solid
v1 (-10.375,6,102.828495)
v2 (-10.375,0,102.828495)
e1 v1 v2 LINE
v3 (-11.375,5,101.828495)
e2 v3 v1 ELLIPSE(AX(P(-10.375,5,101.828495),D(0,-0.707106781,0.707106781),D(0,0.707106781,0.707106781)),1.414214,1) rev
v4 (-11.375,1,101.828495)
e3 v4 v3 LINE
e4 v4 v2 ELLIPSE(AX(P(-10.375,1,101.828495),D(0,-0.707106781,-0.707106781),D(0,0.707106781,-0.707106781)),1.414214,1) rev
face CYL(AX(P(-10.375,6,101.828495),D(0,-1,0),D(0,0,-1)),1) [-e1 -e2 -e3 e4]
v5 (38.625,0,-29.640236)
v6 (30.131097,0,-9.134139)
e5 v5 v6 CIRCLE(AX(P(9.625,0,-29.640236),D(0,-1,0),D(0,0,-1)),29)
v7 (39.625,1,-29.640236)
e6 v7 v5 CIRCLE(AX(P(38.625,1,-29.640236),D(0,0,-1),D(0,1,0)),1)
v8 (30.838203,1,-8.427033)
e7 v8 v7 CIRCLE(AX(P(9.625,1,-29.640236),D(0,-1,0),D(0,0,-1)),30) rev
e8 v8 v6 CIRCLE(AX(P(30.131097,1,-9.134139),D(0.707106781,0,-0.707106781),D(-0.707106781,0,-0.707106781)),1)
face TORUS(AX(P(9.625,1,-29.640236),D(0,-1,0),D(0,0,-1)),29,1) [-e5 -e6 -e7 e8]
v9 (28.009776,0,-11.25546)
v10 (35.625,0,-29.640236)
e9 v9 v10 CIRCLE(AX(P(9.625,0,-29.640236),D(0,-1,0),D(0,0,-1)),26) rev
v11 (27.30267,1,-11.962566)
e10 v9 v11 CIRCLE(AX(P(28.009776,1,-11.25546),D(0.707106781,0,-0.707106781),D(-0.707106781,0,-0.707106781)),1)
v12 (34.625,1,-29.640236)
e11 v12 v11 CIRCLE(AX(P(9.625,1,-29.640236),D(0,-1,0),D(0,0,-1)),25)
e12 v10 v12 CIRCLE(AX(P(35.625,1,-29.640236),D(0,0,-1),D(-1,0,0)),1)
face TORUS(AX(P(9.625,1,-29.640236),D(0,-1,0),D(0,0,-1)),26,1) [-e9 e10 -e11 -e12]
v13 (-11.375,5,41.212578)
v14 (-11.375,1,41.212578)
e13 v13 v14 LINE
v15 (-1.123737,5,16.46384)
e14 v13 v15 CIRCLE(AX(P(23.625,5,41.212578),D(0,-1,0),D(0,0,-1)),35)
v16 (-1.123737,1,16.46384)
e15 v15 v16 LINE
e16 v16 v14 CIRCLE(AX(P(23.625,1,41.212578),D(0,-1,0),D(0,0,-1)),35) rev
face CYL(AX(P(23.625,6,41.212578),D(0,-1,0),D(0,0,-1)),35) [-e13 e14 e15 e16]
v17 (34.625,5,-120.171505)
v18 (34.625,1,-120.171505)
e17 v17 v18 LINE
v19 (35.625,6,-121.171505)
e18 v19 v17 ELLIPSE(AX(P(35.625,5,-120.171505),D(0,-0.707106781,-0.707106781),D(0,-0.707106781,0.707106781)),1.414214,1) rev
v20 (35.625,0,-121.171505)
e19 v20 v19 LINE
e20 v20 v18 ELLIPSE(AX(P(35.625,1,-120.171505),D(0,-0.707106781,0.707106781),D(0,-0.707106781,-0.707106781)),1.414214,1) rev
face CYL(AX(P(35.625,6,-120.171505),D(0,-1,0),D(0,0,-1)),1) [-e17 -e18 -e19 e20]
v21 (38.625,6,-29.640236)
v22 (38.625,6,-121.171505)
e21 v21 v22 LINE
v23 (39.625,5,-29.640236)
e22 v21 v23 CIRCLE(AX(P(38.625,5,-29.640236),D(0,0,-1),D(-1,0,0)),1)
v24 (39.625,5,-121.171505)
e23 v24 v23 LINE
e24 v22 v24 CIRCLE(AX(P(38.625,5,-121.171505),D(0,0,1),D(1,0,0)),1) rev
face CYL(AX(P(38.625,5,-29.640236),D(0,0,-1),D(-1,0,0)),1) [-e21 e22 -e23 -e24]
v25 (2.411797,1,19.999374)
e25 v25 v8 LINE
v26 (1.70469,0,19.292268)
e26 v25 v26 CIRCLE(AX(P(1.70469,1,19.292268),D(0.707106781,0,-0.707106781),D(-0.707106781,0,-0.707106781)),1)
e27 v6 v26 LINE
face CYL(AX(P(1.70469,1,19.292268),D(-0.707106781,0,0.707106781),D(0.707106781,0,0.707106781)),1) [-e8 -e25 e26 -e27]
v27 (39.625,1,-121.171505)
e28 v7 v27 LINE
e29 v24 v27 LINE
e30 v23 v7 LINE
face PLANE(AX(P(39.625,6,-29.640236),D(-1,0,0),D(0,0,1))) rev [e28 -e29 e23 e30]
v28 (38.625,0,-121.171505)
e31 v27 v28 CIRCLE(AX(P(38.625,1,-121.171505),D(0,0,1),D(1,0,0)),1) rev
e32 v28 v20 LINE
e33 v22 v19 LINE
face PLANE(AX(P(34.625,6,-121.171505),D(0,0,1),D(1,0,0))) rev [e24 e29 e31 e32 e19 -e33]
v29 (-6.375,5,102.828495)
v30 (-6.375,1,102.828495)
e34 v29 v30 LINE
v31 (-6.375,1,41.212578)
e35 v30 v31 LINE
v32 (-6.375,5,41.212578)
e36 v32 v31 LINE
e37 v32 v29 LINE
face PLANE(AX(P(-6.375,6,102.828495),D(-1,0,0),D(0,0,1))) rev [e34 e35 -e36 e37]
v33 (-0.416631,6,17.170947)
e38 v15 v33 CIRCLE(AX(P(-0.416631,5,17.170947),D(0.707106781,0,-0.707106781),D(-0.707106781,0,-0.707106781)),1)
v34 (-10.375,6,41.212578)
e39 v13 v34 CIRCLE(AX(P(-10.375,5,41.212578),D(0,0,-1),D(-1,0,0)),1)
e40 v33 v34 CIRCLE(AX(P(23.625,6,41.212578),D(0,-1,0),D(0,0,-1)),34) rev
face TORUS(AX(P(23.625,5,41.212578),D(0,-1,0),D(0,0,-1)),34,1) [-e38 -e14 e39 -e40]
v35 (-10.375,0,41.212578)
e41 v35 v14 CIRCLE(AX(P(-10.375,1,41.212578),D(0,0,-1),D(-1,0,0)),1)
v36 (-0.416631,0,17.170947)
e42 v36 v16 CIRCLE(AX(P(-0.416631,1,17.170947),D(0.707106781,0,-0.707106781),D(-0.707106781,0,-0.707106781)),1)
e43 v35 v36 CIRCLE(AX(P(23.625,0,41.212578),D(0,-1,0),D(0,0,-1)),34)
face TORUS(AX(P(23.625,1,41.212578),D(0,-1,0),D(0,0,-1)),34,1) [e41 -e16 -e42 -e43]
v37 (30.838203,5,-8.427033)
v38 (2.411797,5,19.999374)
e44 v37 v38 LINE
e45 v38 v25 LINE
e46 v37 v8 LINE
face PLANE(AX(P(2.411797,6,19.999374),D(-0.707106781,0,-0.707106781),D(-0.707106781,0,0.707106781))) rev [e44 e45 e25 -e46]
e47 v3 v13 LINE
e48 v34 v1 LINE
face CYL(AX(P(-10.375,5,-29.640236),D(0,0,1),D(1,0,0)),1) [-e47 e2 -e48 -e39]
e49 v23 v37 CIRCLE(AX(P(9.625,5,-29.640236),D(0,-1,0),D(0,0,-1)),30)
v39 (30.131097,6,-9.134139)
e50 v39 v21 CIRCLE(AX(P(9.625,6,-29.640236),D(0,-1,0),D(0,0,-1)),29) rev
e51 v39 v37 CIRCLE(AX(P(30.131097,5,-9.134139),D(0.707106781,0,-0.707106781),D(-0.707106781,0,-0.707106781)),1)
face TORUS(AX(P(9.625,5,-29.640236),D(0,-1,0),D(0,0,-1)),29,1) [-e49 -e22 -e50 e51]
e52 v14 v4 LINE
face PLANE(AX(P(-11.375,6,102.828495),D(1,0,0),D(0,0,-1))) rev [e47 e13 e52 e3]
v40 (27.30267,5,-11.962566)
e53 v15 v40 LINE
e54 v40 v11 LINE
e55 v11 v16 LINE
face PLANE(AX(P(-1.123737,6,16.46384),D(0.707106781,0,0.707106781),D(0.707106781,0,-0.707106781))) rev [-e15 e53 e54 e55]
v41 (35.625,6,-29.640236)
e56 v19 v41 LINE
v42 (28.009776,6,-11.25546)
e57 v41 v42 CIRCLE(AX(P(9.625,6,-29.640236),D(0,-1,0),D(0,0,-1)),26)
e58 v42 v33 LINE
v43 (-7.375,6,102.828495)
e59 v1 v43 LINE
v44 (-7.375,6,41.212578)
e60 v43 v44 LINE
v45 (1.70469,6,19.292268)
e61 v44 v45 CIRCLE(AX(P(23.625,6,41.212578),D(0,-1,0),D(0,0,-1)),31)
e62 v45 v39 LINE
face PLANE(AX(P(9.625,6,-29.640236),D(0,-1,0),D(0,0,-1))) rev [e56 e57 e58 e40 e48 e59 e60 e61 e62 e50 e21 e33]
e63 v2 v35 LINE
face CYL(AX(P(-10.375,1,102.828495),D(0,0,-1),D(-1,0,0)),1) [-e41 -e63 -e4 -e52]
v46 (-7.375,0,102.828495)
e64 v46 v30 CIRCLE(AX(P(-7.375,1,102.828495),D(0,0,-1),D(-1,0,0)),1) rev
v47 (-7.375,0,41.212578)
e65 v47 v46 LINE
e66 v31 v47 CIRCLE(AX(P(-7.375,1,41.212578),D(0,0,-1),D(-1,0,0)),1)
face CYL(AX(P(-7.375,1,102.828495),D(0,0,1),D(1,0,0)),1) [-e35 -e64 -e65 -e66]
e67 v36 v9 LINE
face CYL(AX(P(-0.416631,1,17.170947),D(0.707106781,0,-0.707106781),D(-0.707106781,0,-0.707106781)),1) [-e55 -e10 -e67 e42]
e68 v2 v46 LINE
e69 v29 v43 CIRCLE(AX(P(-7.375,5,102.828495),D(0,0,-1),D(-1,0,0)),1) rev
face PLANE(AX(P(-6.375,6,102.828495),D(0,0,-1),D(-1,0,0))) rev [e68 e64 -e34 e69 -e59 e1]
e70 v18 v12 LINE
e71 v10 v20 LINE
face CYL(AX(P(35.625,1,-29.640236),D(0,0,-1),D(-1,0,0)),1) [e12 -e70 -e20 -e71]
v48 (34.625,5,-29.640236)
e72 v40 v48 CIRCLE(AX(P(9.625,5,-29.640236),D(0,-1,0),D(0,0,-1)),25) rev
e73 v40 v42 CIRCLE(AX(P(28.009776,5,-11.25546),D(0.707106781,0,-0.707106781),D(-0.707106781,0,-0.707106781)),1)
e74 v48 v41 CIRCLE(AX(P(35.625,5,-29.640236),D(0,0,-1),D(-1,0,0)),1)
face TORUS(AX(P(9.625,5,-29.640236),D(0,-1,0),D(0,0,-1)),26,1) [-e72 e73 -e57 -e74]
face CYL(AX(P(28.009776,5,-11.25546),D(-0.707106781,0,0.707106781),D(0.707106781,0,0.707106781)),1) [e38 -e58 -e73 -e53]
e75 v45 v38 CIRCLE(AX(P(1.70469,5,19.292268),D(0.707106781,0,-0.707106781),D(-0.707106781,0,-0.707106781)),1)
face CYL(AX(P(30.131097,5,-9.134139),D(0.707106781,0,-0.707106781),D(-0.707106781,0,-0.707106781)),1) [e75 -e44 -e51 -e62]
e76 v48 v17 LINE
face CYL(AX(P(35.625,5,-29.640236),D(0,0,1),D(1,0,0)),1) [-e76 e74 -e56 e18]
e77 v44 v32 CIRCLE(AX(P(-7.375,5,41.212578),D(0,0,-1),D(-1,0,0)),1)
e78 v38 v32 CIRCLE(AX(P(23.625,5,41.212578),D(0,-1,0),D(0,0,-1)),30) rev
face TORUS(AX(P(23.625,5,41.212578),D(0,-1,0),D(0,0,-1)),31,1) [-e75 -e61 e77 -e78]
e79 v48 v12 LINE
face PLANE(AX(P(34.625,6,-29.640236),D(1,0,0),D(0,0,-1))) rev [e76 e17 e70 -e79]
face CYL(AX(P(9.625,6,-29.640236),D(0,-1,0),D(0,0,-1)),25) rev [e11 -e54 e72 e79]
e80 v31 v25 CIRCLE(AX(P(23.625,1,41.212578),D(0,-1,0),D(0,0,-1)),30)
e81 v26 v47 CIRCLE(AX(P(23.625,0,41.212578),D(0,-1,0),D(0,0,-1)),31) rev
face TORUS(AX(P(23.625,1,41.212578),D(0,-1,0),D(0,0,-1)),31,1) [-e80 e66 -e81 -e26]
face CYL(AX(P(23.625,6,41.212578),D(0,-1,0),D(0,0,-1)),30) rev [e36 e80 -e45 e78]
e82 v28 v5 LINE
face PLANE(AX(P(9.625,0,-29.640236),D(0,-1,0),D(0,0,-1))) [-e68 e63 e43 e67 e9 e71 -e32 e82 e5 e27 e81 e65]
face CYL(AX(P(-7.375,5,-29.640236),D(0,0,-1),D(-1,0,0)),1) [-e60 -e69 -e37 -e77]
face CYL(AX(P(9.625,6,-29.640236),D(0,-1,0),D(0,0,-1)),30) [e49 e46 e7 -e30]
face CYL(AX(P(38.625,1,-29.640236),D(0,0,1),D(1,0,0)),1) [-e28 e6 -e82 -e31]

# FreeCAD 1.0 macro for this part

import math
import FreeCAD as App
import Part
import Sketcher
from FreeCAD import Vector
Q = App.Units.Quantity


def edges_at(feature, points):
    """Names of the edges that pass closest to the given points."""
    edges = feature.Shape.Edges
    near = lambda p: min(range(len(edges)), key=lambda i: edges[i].distToShape(Part.Vertex(*p))[0])
    return sorted({f"Edge{near(p) + 1}" for p in points})

doc = App.newDocument("Part")
body = doc.addObject("PartDesign::Body", "Body")

# Sketch on XZ plane
sketch1 = doc.addObject("Sketcher::SketchObject", "Sketch")
body.addObject(sketch1)
sketch1.AttachmentSupport = (doc.XZ_Plane, [""])
sketch1.MapMode = "FlatFace"
sketch1.addGeometry(Part.LineSegment(Vector(-11, 41, 0), Vector(-11, 103, 0)), False)
sketch1.addGeometry(Part.LineSegment(Vector(-11, 103, 0), Vector(-6, 103, 0)), False)
sketch1.addGeometry(Part.LineSegment(Vector(-6, 103, 0), Vector(-6, 41, 0)), False)
sketch1.addGeometry(Part.ArcOfCircle(Part.Circle(Vector(24, 41, 0), Vector(0, 0, 1), 30), math.radians(-180), math.radians(-135)), False)
sketch1.addGeometry(Part.LineSegment(Vector(2, 20, 0), Vector(31, -8, 0)), False)
sketch1.addGeometry(Part.ArcOfCircle(Part.Circle(Vector(10, -30, 0), Vector(0, 0, 1), 30), math.radians(0), math.radians(45)), False)
sketch1.addGeometry(Part.LineSegment(Vector(40, -30, 0), Vector(40, -121, 0)), False)
sketch1.addGeometry(Part.LineSegment(Vector(40, -121, 0), Vector(35, -121, 0)), False)
sketch1.addGeometry(Part.LineSegment(Vector(35, -121, 0), Vector(35, -30, 0)), False)
sketch1.addGeometry(Part.ArcOfCircle(Part.Circle(Vector(10, -30, 0), Vector(0, 0, 1), 25), math.radians(0), math.radians(45)), False)
sketch1.addGeometry(Part.LineSegment(Vector(27, -12, 0), Vector(-1, 16, 0)), False)
sketch1.addGeometry(Part.ArcOfCircle(Part.Circle(Vector(24, 41, 0), Vector(0, 0, 1), 35), math.radians(180), math.radians(225)), False)
sketch1.addConstraint(Sketcher.Constraint("Coincident", 0, 2, 1, 1))
sketch1.addConstraint(Sketcher.Constraint("Coincident", 1, 2, 2, 1))
sketch1.addConstraint(Sketcher.Constraint("Tangent", 2, 2, 3, 1))
sketch1.addConstraint(Sketcher.Constraint("Tangent", 3, 2, 4, 1))
sketch1.addConstraint(Sketcher.Constraint("Tangent", 4, 2, 5, 2))
sketch1.addConstraint(Sketcher.Constraint("Tangent", 5, 1, 6, 1))
sketch1.addConstraint(Sketcher.Constraint("Coincident", 6, 2, 7, 1))
sketch1.addConstraint(Sketcher.Constraint("Coincident", 7, 2, 8, 1))
sketch1.addConstraint(Sketcher.Constraint("Tangent", 8, 2, 9, 1))
sketch1.addConstraint(Sketcher.Constraint("Tangent", 9, 2, 10, 1))
sketch1.addConstraint(Sketcher.Constraint("Tangent", 10, 2, 11, 2))
sketch1.addConstraint(Sketcher.Constraint("Tangent", 11, 1, 0, 1))
sketch1.addConstraint(Sketcher.Constraint("Vertical", 0))
sketch1.addConstraint(Sketcher.Constraint("Horizontal", 1))
sketch1.addConstraint(Sketcher.Constraint("Vertical", 2))
sketch1.addConstraint(Sketcher.Constraint("Vertical", 6))
sketch1.addConstraint(Sketcher.Constraint("Horizontal", 7))
sketch1.addConstraint(Sketcher.Constraint("Vertical", 8))
sketch1.addConstraint(Sketcher.Constraint("Coincident", 9, 3, 5, 3))
sketch1.addConstraint(Sketcher.Constraint("Coincident", 11, 3, 3, 3))
sketch1.addConstraint(Sketcher.Constraint("Equal", 3, 5))
sketch1.addConstraint(Sketcher.Constraint("Parallel", 4, 10))
sketch1.addConstraint(Sketcher.Constraint("Radius", 3, Q("30 mm")))
sketch1.addConstraint(Sketcher.Constraint("Radius", 9, Q("25 mm")))
sketch1.addConstraint(Sketcher.Constraint("Angle", 4, Q("-45 deg")))
sketch1.addConstraint(Sketcher.Constraint("DistanceX", 5, 3, 3, 3, Q("14 mm")))
sketch1.addConstraint(Sketcher.Constraint("DistanceX", -1, 1, 3, 3, Q("23.625 mm")))
sketch1.addConstraint(Sketcher.Constraint("DistanceY", 6, 2, 6, 1, Q("91.531269 mm")))
sketch1.addConstraint(Sketcher.Constraint("DistanceY", 0, 1, 0, 2, Q("61.615917 mm")))
sketch1.addConstraint(Sketcher.Constraint("DistanceY", -1, 1, 10, 2, Q("16.46384 mm")))
pad1 = doc.addObject("PartDesign::Pad", "Pad")
body.addObject(pad1)
pad1.Profile = sketch1
pad1.Length = 6
pad1.Reversed = True
doc.recompute()

fillet = doc.addObject("PartDesign::Fillet", "Fillet")
body.addObject(fillet)
fillet.Base = (pad1, edges_at(pad1, [
    (39.625, 0, -75.406),
    (37.341, 0, -18.16),
    (32.722, 6, -20.073),
    (16.625, 0, 5.786),
    (-4.091, 0, 29.732),
    (-6.375, 0, 72.021),
    (-11.375, 0, 72.021),
    (-8.711, 0, 27.819),
    (13.089, 0, 2.251),
    (32.722, 0, -20.073),
    (34.625, 0, -75.406),
    (13.089, 6, 2.251),
    (-8.711, 6, 27.819),
    (-11.375, 3, 102.828),
    (34.625, 3, -121.172),
    (-11.375, 6, 72.021),
    (-6.375, 6, 72.021),
    (-4.091, 6, 29.732),
    (16.625, 6, 5.786),
    (37.341, 6, -18.16),
    (39.625, 6, -75.406),
    (34.625, 6, -75.406),
]))
fillet.Radius = 1

doc.recompute()
